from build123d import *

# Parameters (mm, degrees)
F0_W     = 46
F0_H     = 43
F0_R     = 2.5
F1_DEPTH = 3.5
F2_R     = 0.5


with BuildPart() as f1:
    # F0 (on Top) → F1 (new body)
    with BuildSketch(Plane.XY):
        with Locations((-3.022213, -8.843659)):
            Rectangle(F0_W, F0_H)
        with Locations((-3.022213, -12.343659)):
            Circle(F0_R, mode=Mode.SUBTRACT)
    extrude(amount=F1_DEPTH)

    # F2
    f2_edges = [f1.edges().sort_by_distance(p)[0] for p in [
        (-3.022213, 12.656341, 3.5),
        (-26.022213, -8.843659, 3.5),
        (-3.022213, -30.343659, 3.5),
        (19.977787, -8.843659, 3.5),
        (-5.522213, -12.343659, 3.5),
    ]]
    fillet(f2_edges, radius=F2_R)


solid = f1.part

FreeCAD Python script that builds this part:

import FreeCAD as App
import Part
import Sketcher


def edges_at(feature, points):
    """Names of the edges that pass closest to the given points."""
    edges = feature.Shape.Edges
    near = lambda p: min(range(len(edges)), key=lambda i: edges[i].distToShape(Part.Vertex(*p))[0])
    return sorted({f"Edge{near(p) + 1}" for p in points})

doc = App.newDocument("Part")
body = doc.addObject("PartDesign::Body", "Body")

# Sketch on XY plane
sketch1 = body.newObject("Sketcher::SketchObject", "Sketch")
sketch1.AttachmentSupport = (doc.getObject("XY_Plane"), [""])
sketch1.MapMode = "FlatFace"
sketch1.addGeometry(Part.LineSegment(App.Vector(-26, 12.7, 0), App.Vector(-26, -30.3, 0)), False)
sketch1.addGeometry(Part.LineSegment(App.Vector(-26, -30.3, 0), App.Vector(20, -30.3, 0)), False)
sketch1.addGeometry(Part.LineSegment(App.Vector(20, -30.3, 0), App.Vector(20, 12.7, 0)), False)
sketch1.addGeometry(Part.LineSegment(App.Vector(20, 12.7, 0), App.Vector(-26, 12.7, 0)), False)
sketch1.addGeometry(Part.Circle(App.Vector(-3, -12.3, 0), App.Vector(0, 0, 1), 2.5), False)
sketch1.addConstraint(Sketcher.Constraint("Coincident", 0, 2, 1, 1))
sketch1.addConstraint(Sketcher.Constraint("Coincident", 1, 2, 2, 1))
sketch1.addConstraint(Sketcher.Constraint("Coincident", 2, 2, 3, 1))
sketch1.addConstraint(Sketcher.Constraint("Coincident", 3, 2, 0, 1))
sketch1.addConstraint(Sketcher.Constraint("Vertical", 0))
sketch1.addConstraint(Sketcher.Constraint("Horizontal", 1))
sketch1.addConstraint(Sketcher.Constraint("Vertical", 2))
sketch1.addConstraint(Sketcher.Constraint("Horizontal", 3))
sketch1.addConstraint(Sketcher.Constraint("Diameter", 4, 5.0))
sketch1.addConstraint(Sketcher.Constraint("DistanceX", 1, 1, 1, 2, 46.0))
sketch1.addConstraint(Sketcher.Constraint("DistanceY", 0, 2, 0, 1, 43.0))
sketch1.addConstraint(Sketcher.Constraint("DistanceX", 0, 2, 4, 3, 23.0))
sketch1.addConstraint(Sketcher.Constraint("DistanceY", 0, 2, 4, 3, 18.0))
sketch1.addConstraint(Sketcher.Constraint("DistanceY", 4, 3, -1, 1, 12.343659))
sketch1.addConstraint(Sketcher.Constraint("DistanceX", 4, 3, -1, 1, 3.022213))
pad1 = body.newObject("PartDesign::Pad", "Pad")
pad1.Profile = sketch1
pad1.Length = 3.5
doc.recompute()

fillet = body.newObject("PartDesign::Fillet", "Fillet")
fillet.Base = (pad1, edges_at(pad1, [
    (-3.022, 12.656, 3.5),
    (-26.022, -8.844, 3.5),
    (-3.022, -30.344, 3.5),
    (19.978, -8.844, 3.5),
    (-5.522, -12.344, 3.5),
]))
fillet.Radius = 0.5

doc.recompute()
